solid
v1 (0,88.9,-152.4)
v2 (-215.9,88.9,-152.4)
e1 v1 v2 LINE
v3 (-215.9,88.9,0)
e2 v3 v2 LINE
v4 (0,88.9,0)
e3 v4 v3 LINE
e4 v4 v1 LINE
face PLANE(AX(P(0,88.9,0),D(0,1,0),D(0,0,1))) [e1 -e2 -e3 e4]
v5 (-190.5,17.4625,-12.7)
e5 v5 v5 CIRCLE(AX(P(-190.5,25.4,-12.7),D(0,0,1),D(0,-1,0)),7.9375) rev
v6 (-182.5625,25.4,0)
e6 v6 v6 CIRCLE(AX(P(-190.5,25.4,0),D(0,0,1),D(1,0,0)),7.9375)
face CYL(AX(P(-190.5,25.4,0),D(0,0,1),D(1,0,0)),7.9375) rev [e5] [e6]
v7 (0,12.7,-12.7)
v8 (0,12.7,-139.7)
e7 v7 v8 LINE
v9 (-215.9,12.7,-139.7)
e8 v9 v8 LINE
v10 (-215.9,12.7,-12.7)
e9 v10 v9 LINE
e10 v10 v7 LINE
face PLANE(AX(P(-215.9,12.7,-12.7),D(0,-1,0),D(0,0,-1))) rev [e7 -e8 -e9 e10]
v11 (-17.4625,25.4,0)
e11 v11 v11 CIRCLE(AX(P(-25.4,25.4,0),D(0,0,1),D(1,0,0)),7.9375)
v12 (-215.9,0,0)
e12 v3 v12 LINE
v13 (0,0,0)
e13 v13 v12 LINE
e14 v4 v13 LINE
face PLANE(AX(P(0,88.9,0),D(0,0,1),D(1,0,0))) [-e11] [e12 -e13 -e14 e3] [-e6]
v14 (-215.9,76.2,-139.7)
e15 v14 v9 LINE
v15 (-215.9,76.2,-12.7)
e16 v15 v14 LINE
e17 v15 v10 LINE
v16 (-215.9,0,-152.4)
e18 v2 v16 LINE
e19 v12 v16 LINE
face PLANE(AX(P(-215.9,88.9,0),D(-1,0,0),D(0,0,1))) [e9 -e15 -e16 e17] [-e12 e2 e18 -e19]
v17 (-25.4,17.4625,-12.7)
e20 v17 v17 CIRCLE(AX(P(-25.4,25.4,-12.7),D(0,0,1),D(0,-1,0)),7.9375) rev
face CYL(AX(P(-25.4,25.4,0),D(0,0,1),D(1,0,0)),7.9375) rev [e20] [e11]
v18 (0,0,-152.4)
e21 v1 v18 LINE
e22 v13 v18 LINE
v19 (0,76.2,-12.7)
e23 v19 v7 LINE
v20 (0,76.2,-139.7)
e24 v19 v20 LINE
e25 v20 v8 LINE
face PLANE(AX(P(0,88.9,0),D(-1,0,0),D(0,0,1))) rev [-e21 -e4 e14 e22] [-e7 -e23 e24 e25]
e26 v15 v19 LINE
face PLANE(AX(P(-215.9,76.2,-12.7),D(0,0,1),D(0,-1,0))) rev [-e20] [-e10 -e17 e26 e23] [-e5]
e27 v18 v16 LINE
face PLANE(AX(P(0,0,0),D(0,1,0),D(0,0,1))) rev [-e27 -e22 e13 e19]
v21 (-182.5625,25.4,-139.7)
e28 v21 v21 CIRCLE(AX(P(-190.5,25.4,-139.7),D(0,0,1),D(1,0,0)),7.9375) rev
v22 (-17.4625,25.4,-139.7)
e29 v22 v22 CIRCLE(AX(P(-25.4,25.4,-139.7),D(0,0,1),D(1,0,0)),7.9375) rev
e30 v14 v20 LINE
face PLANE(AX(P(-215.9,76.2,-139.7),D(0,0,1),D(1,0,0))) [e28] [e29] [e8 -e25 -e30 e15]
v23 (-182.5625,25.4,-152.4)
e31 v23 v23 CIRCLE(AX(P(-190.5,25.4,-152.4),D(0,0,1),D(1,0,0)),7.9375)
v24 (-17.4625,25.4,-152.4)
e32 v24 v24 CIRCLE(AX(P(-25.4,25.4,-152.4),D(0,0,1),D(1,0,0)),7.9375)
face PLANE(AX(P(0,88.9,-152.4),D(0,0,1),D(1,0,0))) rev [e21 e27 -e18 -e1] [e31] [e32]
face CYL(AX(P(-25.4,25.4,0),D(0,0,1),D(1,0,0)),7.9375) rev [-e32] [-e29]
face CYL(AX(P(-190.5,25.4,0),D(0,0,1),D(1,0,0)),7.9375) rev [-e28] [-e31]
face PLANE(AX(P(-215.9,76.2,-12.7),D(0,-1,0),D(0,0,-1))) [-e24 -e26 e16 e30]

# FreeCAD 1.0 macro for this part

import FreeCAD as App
import Part
import Sketcher

V = App.Vector
Q = App.Units.Quantity


def add_polygon(sketch, points):
    """Adds a closed chain of lines whose ends are joined by coincident constraints."""
    first, n = sketch.GeometryCount, len(points)
    for a, b in zip(points, points[1:] + points[:1]):
        sketch.addGeometry(Part.LineSegment(App.Vector(*a, 0), App.Vector(*b, 0)), False)
    for i in range(n):
        sketch.addConstraint(Sketcher.Constraint("Coincident", first + i, 2, first + (i + 1) % n, 1))

doc = App.newDocument("Part")
body = doc.addObject("PartDesign::Body", "Body")

sketch1 = body.newObject("Sketcher::SketchObject", "Sketch")
sketch1.AttachmentSupport = (doc.getObject("XZ_Plane"), [""])
sketch1.MapMode = "FlatFace"
add_polygon(sketch1, [(-216, -152), (-216, 0), (0, 0), (0, -152)])
sketch1.addConstraint([
    Sketcher.Constraint("Vertical", 0),
    Sketcher.Constraint("Horizontal", 1),
    Sketcher.Constraint("Vertical", 2),
    Sketcher.Constraint("Horizontal", 3),
    Sketcher.Constraint("Coincident", 1, 2, -1, 1),
    Sketcher.Constraint("DistanceY", 0, 1, 0, 2, Q("6 in")),
    Sketcher.Constraint("DistanceX", 1, 1, 1, 2, Q("8.5 in")),
])
pad1 = body.newObject("PartDesign::Pad", "Pad")
pad1.Profile = sketch1
pad1.Length = Q("3.5 in")
pad1.Reversed = True

sketch2 = body.newObject("Sketcher::SketchObject", "Sketch001")
sketch2.AttachmentSupport = (doc.getObject("XY_Plane"), [""])
sketch2.MapMode = "FlatFace"
sketch2.addGeometry([
    Part.Circle(V(-190, 25, 0), V(0, 0, 1), 8),
    Part.Circle(V(-25, 25, 0), V(0, 0, 1), 8),
], False)
sketch2.addConstraint([
    Sketcher.Constraint("Equal", 0, 1),
    Sketcher.Constraint("Horizontal", 0, 3, 1, 3),
    Sketcher.Constraint("Diameter", 0, Q("0.625 in")),
    Sketcher.Constraint("DistanceY", -1, 1, 0, 3, Q("1 in")),
    Sketcher.Constraint("DistanceX", 1, 3, -1, 1, Q("1 in")),
    Sketcher.Constraint("DistanceX", 0, 3, -1, 1, Q("7.5 in")),
])
doc.recompute()
hole = body.newObject("PartDesign::Hole", "Hole")
hole.Profile = sketch2
hole.ThreadType = "None"
hole.Diameter = Q("0.625 in")
hole.DepthType = "ThroughAll"

sketch3 = body.newObject("Sketcher::SketchObject", "Sketch002")
sketch3.AttachmentSupport = (doc.getObject("YZ_Plane"), [""])
sketch3.MapMode = "FlatFace"
add_polygon(sketch3, [(76, -13), (13, -13), (13, -140), (76, -140)])
sketch3.addConstraint([
    Sketcher.Constraint("Horizontal", 0),
    Sketcher.Constraint("Vertical", 1),
    Sketcher.Constraint("Horizontal", 2),
    Sketcher.Constraint("Vertical", 3),
    Sketcher.Constraint("DistanceY", 1, 2, 1, 1, Q("5 in")),
    Sketcher.Constraint("DistanceX", 0, 2, 0, 1, Q("2.5 in")),
    Sketcher.Constraint("DistanceX", -1, 1, 2, 2, Q("3 in")),
    Sketcher.Constraint("DistanceY", 0, 2, -1, 1, Q("0.5 in")),
])
pocket1 = body.newObject("PartDesign::Pocket", "Pocket")
pocket1.Profile = sketch3
pocket1.Type = "ThroughAll"

doc.recompute()
